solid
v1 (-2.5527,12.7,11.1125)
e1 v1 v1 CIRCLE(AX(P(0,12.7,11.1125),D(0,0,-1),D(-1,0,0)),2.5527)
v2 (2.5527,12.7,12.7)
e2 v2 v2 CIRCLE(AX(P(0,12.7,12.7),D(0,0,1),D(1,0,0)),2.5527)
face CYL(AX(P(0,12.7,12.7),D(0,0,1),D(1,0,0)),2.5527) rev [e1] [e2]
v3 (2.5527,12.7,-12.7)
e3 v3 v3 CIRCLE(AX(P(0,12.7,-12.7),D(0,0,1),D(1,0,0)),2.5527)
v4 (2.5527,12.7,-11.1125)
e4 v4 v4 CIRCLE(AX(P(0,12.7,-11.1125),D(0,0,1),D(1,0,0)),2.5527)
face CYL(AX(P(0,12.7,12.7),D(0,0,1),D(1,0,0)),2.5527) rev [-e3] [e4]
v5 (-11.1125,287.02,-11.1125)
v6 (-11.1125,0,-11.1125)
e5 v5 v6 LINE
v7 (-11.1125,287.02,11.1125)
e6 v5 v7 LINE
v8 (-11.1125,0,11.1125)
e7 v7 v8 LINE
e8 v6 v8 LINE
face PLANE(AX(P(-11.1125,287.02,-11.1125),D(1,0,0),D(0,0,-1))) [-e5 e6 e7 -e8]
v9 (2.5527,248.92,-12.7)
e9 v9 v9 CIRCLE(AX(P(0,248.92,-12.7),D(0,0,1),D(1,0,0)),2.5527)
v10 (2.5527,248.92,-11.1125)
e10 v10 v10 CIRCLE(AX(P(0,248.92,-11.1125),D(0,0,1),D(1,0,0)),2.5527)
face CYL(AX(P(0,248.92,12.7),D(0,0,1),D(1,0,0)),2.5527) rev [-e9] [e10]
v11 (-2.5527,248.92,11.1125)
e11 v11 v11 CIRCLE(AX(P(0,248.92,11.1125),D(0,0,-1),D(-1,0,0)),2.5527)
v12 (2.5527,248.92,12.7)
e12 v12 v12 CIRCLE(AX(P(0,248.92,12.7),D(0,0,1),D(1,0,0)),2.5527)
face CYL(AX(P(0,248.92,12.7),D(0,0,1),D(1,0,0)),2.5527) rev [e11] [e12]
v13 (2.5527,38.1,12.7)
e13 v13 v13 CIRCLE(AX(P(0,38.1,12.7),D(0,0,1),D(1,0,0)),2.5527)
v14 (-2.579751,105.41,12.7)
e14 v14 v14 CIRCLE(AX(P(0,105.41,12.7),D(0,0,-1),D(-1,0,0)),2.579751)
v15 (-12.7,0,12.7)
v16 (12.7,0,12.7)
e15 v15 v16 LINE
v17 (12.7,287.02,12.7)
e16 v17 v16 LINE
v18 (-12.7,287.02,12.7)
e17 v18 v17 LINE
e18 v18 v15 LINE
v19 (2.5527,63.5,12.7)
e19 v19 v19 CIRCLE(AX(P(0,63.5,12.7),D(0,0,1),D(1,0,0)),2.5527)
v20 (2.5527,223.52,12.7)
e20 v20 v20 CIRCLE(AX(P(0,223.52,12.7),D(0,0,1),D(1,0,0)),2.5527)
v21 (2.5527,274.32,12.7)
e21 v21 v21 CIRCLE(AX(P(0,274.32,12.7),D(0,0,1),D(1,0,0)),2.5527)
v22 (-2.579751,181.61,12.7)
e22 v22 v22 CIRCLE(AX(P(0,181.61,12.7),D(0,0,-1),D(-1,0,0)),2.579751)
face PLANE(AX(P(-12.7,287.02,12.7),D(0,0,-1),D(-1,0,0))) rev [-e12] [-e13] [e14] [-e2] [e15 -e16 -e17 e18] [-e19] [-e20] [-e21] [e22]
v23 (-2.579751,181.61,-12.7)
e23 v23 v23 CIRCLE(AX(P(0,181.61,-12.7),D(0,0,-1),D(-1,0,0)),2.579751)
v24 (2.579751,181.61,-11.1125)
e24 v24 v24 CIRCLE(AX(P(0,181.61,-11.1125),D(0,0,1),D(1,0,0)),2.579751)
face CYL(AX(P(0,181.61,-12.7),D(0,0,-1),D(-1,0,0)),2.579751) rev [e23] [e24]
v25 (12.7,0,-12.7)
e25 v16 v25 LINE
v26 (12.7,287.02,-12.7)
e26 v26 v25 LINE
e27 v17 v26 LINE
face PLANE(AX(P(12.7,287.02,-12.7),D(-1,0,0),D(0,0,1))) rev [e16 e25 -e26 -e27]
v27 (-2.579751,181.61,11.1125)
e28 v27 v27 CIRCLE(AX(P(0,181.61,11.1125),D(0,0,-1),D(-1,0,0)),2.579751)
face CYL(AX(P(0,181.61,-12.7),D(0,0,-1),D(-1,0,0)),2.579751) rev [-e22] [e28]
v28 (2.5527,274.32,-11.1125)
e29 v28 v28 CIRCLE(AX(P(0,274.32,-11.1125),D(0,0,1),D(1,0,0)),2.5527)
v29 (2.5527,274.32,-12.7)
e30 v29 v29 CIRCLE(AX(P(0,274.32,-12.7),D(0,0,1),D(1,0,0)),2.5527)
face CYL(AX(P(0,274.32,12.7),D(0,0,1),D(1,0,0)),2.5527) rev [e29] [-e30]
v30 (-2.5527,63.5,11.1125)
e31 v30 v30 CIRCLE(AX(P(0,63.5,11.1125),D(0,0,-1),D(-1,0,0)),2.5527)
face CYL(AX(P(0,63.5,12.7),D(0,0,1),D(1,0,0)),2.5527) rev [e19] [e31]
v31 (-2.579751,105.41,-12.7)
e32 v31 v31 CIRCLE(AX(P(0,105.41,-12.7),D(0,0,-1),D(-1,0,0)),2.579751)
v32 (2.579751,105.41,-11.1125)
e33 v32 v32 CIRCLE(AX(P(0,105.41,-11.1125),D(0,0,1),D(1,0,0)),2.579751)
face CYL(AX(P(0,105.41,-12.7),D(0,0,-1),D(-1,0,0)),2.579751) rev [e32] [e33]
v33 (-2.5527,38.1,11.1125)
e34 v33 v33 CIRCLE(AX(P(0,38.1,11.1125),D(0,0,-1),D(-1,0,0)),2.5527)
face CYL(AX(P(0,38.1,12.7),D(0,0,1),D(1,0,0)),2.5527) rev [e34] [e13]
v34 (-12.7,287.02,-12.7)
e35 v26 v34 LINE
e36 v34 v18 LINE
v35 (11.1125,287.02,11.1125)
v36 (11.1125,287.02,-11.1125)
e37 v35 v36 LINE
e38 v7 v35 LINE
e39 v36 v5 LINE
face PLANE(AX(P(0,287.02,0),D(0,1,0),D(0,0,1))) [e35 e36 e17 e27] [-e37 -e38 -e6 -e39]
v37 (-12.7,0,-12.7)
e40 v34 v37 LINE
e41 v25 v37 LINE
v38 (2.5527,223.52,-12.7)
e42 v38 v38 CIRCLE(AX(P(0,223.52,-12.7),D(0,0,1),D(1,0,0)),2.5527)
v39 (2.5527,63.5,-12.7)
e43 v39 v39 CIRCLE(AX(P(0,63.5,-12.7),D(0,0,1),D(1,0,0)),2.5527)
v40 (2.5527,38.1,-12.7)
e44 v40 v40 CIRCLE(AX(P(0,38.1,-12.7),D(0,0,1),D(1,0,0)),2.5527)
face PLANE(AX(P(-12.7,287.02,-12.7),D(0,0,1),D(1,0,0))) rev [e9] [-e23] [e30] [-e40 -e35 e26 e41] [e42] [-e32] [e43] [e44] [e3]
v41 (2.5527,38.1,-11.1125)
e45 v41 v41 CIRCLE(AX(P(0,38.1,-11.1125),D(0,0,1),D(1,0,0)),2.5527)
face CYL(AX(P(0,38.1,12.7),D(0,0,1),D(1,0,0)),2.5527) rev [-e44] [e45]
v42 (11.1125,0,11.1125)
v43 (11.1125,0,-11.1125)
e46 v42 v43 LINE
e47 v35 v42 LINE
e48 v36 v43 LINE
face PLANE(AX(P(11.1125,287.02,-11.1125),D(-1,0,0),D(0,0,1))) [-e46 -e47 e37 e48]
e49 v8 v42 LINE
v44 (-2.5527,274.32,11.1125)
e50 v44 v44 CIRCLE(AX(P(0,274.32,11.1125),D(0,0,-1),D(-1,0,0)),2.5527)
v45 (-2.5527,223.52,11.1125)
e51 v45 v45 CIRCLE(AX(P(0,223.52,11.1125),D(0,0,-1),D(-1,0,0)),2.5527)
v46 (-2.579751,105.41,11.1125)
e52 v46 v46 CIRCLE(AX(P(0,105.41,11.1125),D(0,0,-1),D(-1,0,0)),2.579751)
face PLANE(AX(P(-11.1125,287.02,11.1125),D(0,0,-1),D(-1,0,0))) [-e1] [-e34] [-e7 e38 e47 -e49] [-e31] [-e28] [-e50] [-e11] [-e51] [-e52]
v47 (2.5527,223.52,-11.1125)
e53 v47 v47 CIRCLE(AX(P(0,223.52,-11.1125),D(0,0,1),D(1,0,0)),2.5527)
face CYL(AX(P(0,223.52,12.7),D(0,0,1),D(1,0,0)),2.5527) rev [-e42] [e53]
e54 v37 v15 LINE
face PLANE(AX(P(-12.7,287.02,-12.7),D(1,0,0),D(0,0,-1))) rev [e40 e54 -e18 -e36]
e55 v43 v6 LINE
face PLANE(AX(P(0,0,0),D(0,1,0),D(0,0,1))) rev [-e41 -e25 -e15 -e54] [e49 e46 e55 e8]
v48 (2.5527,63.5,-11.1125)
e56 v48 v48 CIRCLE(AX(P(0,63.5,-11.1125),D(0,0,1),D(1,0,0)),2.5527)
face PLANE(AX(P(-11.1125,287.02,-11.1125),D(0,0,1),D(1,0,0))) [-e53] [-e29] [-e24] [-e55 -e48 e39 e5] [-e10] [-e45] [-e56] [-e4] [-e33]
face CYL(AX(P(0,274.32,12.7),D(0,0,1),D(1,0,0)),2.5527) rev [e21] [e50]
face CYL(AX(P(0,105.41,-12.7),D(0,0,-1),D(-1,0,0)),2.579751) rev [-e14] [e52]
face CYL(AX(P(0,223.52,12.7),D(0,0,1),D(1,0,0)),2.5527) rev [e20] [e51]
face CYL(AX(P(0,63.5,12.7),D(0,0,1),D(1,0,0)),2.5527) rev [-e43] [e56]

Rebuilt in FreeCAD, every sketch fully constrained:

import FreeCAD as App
import Part
import Sketcher
from FreeCAD import Vector
Q = App.Units.Quantity

doc = App.newDocument("Part")
body = doc.addObject("PartDesign::Body", "Body")

# Sketch on XZ plane
sketch1 = doc.addObject("Sketcher::SketchObject", "Sketch")
body.addObject(sketch1)
sketch1.AttachmentSupport = (doc.XZ_Plane, [""])
sketch1.MapMode = "FlatFace"
sketch1.addGeometry(Part.LineSegment(Vector(-13, -13, 0), Vector(-13, 13, 0)), False)
sketch1.addGeometry(Part.LineSegment(Vector(-13, 13, 0), Vector(13, 13, 0)), False)
sketch1.addGeometry(Part.LineSegment(Vector(13, 13, 0), Vector(13, -13, 0)), False)
sketch1.addGeometry(Part.LineSegment(Vector(13, -13, 0), Vector(-13, -13, 0)), False)
sketch1.addGeometry(Part.LineSegment(Vector(11, 11, 0), Vector(-11, 11, 0)), False)
sketch1.addGeometry(Part.LineSegment(Vector(-11, 11, 0), Vector(-11, -11, 0)), False)
sketch1.addGeometry(Part.LineSegment(Vector(-11, -11, 0), Vector(11, -11, 0)), False)
sketch1.addGeometry(Part.LineSegment(Vector(11, -11, 0), Vector(11, 11, 0)), False)
sketch1.addConstraint(Sketcher.Constraint("Coincident", 0, 2, 1, 1))
sketch1.addConstraint(Sketcher.Constraint("Coincident", 1, 2, 2, 1))
sketch1.addConstraint(Sketcher.Constraint("Coincident", 2, 2, 3, 1))
sketch1.addConstraint(Sketcher.Constraint("Coincident", 3, 2, 0, 1))
sketch1.addConstraint(Sketcher.Constraint("Coincident", 4, 2, 5, 1))
sketch1.addConstraint(Sketcher.Constraint("Coincident", 5, 2, 6, 1))
sketch1.addConstraint(Sketcher.Constraint("Coincident", 6, 2, 7, 1))
sketch1.addConstraint(Sketcher.Constraint("Coincident", 7, 2, 4, 1))
sketch1.addConstraint(Sketcher.Constraint("Vertical", 0))
sketch1.addConstraint(Sketcher.Constraint("Horizontal", 1))
sketch1.addConstraint(Sketcher.Constraint("Vertical", 2))
sketch1.addConstraint(Sketcher.Constraint("Horizontal", 3))
sketch1.addConstraint(Sketcher.Constraint("Horizontal", 4))
sketch1.addConstraint(Sketcher.Constraint("Vertical", 5))
sketch1.addConstraint(Sketcher.Constraint("Horizontal", 6))
sketch1.addConstraint(Sketcher.Constraint("Vertical", 7))
sketch1.addConstraint(Sketcher.Constraint("Symmetric", 0, 2, 2, 2, -1, 1))
sketch1.addConstraint(Sketcher.Constraint("Symmetric", 4, 2, 6, 2, -1, 1))
sketch1.addConstraint(Sketcher.Constraint("Equal", 3, 0))
sketch1.addConstraint(Sketcher.Constraint("Equal", 6, 5))
sketch1.addConstraint(Sketcher.Constraint("DistanceX", 1, 1, 1, 2, Q("1 in")))
sketch1.addConstraint(Sketcher.Constraint("DistanceX", 4, 2, 4, 1, Q("0.875 in")))
pad1 = doc.addObject("PartDesign::Pad", "Pad")
body.addObject(pad1)
pad1.Profile = sketch1
pad1.Length = Q("11.3 in")
pad1.Reversed = True

# Sketch on XY plane
sketch2 = doc.addObject("Sketcher::SketchObject", "Sketch001")
body.addObject(sketch2)
sketch2.AttachmentSupport = (doc.XY_Plane, [""])
sketch2.MapMode = "FlatFace"
sketch2.AttachmentOffset = App.Placement(Vector(0, 0, 0.5 * 25.4), App.Rotation())
sketch2.addGeometry(Part.Circle(Vector(0, 274.3, 0), Vector(0, 0, 1), 2.6), False)
sketch2.addGeometry(Part.Circle(Vector(0, 248.9, 0), Vector(0, 0, 1), 2.6), False)
sketch2.addGeometry(Part.Circle(Vector(0, 223.5, 0), Vector(0, 0, 1), 2.6), False)
sketch2.addGeometry(Part.Circle(Vector(0, 63.5, 0), Vector(0, 0, 1), 2.6), False)
sketch2.addGeometry(Part.Circle(Vector(0, 38.1, 0), Vector(0, 0, 1), 2.6), False)
sketch2.addGeometry(Part.Circle(Vector(0, 12.7, 0), Vector(0, 0, 1), 2.6), False)
sketch2.addConstraint(Sketcher.Constraint("Equal", 0, 1))
sketch2.addConstraint(Sketcher.Constraint("Equal", 1, 2))
sketch2.addConstraint(Sketcher.Constraint("Equal", 2, 3))
sketch2.addConstraint(Sketcher.Constraint("Equal", 3, 4))
sketch2.addConstraint(Sketcher.Constraint("Equal", 4, 5))
sketch2.addConstraint(Sketcher.Constraint("PointOnObject", 0, 3, -2))
sketch2.addConstraint(Sketcher.Constraint("PointOnObject", 1, 3, -2))
sketch2.addConstraint(Sketcher.Constraint("PointOnObject", 2, 3, -2))
sketch2.addConstraint(Sketcher.Constraint("PointOnObject", 3, 3, -2))
sketch2.addConstraint(Sketcher.Constraint("PointOnObject", 4, 3, -2))
sketch2.addConstraint(Sketcher.Constraint("PointOnObject", 5, 3, -2))
sketch2.addConstraint(Sketcher.Constraint("Diameter", 0, Q("0.201 in")))
sketch2.addConstraint(Sketcher.Constraint("DistanceY", 1, 3, 0, 3, Q("1 in")))
sketch2.addConstraint(Sketcher.Constraint("DistanceY", 2, 3, 1, 3, Q("1 in")))
sketch2.addConstraint(Sketcher.Constraint("DistanceY", 4, 3, 3, 3, Q("1 in")))
sketch2.addConstraint(Sketcher.Constraint("DistanceY", 5, 3, 4, 3, Q("1 in")))
sketch2.addConstraint(Sketcher.Constraint("DistanceY", -1, 1, 0, 3, Q("10.8 in")))
sketch2.addConstraint(Sketcher.Constraint("DistanceY", -1, 1, 3, 3, Q("2.5 in")))
doc.recompute()
hole = doc.addObject("PartDesign::Hole", "Hole")
body.addObject(hole)
hole.Profile = sketch2
hole.ThreadType = "None"
hole.Diameter = Q("0.201 in")
hole.DepthType = "ThroughAll"

# Sketch on XY plane
sketch3 = doc.addObject("Sketcher::SketchObject", "Sketch002")
body.addObject(sketch3)
sketch3.AttachmentSupport = (doc.XY_Plane, [""])
sketch3.MapMode = "FlatFace"
sketch3.AttachmentOffset = App.Placement(Vector(0, 0, -0.5 * 25.4), App.Rotation())
sketch3.addGeometry(Part.Circle(Vector(0, 105.4, 0), Vector(0, 0, 1), 2.6), False)
sketch3.addGeometry(Part.Circle(Vector(0, 181.6, 0), Vector(0, 0, 1), 2.6), False)
sketch3.addConstraint(Sketcher.Constraint("Equal", 0, 1))
sketch3.addConstraint(Sketcher.Constraint("PointOnObject", 0, 3, -2))
sketch3.addConstraint(Sketcher.Constraint("PointOnObject", 1, 3, -2))
sketch3.addConstraint(Sketcher.Constraint("DistanceY", 0, 3, 1, 3, Q("3 in")))
sketch3.addConstraint(Sketcher.Constraint("Diameter", 0, 5.159502))
sketch3.addConstraint(Sketcher.Constraint("DistanceY", -1, 1, 0, 3, Q("4.15 in")))
doc.recompute()
hole2 = doc.addObject("PartDesign::Hole", "Hole001")
body.addObject(hole2)
hole2.Profile = sketch3
hole2.ThreadType = "None"
hole2.Diameter = 5.159502
hole2.DepthType = "ThroughAll"
hole2.Reversed = True

doc.recompute()
